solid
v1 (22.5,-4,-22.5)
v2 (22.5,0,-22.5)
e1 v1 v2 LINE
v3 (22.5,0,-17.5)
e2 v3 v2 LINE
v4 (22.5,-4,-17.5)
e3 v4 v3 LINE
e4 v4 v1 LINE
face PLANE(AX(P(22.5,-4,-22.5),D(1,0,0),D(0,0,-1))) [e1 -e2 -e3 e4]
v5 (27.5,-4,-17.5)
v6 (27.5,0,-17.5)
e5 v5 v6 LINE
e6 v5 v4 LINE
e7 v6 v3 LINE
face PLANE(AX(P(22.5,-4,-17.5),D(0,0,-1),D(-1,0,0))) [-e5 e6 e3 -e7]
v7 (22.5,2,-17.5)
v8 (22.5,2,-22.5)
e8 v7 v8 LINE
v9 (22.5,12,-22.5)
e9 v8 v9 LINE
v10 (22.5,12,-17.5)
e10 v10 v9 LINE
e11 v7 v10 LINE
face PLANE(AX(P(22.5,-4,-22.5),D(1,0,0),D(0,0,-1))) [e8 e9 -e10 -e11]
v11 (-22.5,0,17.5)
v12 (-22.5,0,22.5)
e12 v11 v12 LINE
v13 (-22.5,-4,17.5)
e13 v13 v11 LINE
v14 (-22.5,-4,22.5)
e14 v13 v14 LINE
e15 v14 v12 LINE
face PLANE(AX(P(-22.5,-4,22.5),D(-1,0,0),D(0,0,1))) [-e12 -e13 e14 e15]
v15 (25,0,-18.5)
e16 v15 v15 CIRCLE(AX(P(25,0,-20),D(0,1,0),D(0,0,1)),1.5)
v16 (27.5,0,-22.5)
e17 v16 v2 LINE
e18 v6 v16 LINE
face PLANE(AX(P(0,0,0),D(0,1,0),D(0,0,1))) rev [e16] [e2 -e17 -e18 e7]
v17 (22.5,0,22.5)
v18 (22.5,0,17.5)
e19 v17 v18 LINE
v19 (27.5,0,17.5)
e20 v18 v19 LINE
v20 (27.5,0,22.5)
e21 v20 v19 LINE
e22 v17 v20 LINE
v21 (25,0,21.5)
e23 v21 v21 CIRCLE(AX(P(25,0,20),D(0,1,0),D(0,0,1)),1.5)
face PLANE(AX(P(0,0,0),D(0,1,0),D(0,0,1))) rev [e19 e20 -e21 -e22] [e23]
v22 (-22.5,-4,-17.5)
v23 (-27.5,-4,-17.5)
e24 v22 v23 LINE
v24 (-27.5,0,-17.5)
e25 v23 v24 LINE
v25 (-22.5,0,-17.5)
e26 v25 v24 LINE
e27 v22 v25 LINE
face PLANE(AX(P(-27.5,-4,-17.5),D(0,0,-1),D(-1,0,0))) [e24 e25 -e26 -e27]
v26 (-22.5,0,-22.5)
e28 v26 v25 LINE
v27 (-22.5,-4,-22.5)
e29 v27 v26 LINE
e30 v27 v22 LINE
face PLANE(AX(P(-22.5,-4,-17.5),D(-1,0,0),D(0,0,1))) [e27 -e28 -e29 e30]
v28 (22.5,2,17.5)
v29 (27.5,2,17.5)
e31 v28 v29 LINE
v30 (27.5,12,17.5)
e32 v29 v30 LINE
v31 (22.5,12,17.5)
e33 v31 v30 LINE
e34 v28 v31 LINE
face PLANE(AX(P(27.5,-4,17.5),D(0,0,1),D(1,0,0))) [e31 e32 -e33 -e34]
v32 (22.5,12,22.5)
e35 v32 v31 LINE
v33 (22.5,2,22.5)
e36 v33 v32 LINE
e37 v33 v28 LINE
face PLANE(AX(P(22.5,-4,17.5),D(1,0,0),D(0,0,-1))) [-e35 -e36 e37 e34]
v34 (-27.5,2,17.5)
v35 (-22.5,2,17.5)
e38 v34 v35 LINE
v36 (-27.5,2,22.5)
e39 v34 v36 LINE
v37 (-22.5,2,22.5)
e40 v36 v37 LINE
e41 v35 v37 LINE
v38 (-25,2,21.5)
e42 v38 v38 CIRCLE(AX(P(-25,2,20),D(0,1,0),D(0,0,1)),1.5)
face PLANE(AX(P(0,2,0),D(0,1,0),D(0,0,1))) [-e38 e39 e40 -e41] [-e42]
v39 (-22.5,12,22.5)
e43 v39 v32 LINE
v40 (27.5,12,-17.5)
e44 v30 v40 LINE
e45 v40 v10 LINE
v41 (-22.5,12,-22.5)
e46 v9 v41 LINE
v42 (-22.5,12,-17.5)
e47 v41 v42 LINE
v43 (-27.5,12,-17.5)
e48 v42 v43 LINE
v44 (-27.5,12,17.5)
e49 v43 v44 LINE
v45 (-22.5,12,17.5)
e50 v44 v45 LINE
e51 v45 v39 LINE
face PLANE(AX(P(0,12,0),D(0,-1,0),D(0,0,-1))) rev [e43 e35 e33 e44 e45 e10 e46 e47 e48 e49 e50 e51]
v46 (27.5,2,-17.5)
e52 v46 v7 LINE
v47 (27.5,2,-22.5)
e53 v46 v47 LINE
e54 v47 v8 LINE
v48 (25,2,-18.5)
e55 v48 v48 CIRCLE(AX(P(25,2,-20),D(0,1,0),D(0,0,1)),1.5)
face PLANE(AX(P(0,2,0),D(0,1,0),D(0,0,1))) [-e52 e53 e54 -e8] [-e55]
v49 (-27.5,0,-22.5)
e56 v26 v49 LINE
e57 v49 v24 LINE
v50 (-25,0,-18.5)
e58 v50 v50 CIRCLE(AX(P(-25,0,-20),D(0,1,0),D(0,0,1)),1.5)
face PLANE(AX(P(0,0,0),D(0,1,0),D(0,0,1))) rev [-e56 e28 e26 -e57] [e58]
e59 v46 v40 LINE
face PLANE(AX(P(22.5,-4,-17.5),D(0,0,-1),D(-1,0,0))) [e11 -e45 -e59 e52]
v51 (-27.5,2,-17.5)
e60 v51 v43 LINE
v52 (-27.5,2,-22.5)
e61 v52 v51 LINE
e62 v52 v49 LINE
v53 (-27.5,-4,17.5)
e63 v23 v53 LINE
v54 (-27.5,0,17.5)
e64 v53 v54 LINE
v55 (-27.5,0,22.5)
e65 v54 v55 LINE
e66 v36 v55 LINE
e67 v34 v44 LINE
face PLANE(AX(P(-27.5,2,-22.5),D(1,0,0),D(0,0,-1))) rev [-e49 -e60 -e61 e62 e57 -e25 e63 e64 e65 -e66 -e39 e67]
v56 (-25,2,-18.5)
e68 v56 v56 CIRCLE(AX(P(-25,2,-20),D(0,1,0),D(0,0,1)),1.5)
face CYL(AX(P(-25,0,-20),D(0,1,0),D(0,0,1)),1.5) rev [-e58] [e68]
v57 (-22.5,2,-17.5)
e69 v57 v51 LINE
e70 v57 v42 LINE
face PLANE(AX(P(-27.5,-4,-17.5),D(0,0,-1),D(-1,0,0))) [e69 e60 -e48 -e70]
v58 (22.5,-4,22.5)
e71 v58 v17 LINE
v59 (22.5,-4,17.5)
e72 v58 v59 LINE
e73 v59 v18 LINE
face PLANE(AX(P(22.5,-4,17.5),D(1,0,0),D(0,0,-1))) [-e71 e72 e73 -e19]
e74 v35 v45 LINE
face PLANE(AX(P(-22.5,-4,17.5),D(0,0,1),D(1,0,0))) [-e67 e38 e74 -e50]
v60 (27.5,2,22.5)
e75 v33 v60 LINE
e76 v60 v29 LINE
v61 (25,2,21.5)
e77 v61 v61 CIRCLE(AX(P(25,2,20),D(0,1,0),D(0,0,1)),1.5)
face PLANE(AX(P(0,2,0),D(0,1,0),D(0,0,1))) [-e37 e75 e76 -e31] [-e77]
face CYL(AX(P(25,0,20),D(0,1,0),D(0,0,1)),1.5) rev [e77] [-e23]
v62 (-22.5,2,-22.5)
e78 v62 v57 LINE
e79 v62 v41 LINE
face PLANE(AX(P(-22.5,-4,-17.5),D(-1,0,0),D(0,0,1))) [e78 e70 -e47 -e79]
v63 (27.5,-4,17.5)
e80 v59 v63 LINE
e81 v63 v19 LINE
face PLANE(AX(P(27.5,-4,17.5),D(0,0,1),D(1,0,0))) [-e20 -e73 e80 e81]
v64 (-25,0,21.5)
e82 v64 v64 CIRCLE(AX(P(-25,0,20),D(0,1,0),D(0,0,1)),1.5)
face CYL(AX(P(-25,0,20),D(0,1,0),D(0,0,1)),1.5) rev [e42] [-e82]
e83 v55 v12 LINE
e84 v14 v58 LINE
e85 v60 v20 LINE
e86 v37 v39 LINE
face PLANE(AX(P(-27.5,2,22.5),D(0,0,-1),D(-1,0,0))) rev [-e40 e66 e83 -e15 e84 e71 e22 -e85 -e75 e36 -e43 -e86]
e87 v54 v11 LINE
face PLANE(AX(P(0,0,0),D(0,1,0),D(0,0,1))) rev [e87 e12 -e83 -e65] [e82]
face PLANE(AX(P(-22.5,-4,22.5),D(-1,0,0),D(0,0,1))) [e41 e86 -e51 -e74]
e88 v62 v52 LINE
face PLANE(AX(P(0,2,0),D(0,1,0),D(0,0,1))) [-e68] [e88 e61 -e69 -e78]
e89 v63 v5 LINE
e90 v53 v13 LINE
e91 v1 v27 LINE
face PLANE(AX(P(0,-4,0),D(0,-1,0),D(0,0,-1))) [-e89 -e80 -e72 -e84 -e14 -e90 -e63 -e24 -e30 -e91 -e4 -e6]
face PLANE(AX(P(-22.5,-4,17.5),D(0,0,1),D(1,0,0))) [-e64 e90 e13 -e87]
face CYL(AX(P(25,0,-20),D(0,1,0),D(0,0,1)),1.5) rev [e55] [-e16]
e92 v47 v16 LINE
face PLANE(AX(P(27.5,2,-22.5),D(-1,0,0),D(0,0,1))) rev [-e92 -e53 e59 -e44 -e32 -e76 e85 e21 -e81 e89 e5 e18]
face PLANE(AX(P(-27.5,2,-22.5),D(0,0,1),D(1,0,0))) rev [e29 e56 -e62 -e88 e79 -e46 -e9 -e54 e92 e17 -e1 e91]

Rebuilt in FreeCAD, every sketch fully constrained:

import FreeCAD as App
import Part
import Sketcher
from FreeCAD import Vector
Q = App.Units.Quantity

doc = App.newDocument("Part")
params = doc.addObject("Spreadsheet::Sheet", "Params")
for row, (alias, value) in enumerate([
    ("sketch1_width", "55 mm"),
    ("sketch1_height", "45 mm"),
    ("pad1_length", "2 mm"),
    ("sketch2_diameter", "3 mm"),
    ("sketch3_width", "5 mm"),
    ("sketch3_width2", "45 mm"),
    ("sketch3_height", "35 mm"),
    ("pad2_length", "10 mm"),
    ("pad2_length2", "6 mm"),
], start=1):
    params.set(f"A{row}", alias)
    params.set(f"B{row}", "=" + value)
    params.setAlias(f"B{row}", alias)

body = doc.addObject("PartDesign::Body", "Body")

# Sketch on XZ plane
sketch1 = body.newObject("Sketcher::SketchObject", "Sketch")
sketch1.AttachmentSupport = (doc.getObject("XZ_Plane"), [""])
sketch1.MapMode = "FlatFace"
sketch1.addGeometry(Part.LineSegment(Vector(-28, -22, 0), Vector(-28, 22, 0)), False)
sketch1.addGeometry(Part.LineSegment(Vector(-28, 22, 0), Vector(28, 22, 0)), False)
sketch1.addGeometry(Part.LineSegment(Vector(28, 22, 0), Vector(28, -22, 0)), False)
sketch1.addGeometry(Part.LineSegment(Vector(28, -22, 0), Vector(-28, -22, 0)), False)
sketch1.addConstraint(Sketcher.Constraint("Coincident", 0, 2, 1, 1))
sketch1.addConstraint(Sketcher.Constraint("Coincident", 1, 2, 2, 1))
sketch1.addConstraint(Sketcher.Constraint("Coincident", 2, 2, 3, 1))
sketch1.addConstraint(Sketcher.Constraint("Coincident", 3, 2, 0, 1))
sketch1.addConstraint(Sketcher.Constraint("Vertical", 0))
sketch1.addConstraint(Sketcher.Constraint("Horizontal", 1))
sketch1.addConstraint(Sketcher.Constraint("Vertical", 2))
sketch1.addConstraint(Sketcher.Constraint("Horizontal", 3))
sketch1.addConstraint(Sketcher.Constraint("Symmetric", 0, 2, 2, 2, -1, 1))
sketch1.addConstraint(Sketcher.Constraint("DistanceX", 1, 1, 1, 2, Q("55 mm")))
sketch1.addConstraint(Sketcher.Constraint("DistanceY", 0, 1, 0, 2, Q("45 mm")))
sketch1.setExpression("Constraints[9]", "Params.sketch1_width")
sketch1.setExpression("Constraints[10]", "Params.sketch1_height")
pad1 = body.newObject("PartDesign::Pad", "Pad")
pad1.Profile = sketch1
pad1.setExpression("Length", "Params.pad1_length")
pad1.Reversed = True

# Sketch on XZ plane
sketch2 = body.newObject("Sketcher::SketchObject", "Sketch001")
sketch2.AttachmentSupport = (doc.getObject("XZ_Plane"), [""])
sketch2.MapMode = "FlatFace"
sketch2.AttachmentOffset = App.Placement(Vector(0, 0, -2), App.Rotation())
sketch2.addGeometry(Part.Circle(Vector(-25, -20, 0), Vector(0, 0, 1), 1.5), False)
sketch2.addGeometry(Part.Circle(Vector(25, -20, 0), Vector(0, 0, 1), 1.5), False)
sketch2.addGeometry(Part.Circle(Vector(25, 20, 0), Vector(0, 0, 1), 1.5), False)
sketch2.addGeometry(Part.Circle(Vector(-25, 20, 0), Vector(0, 0, 1), 1.5), False)
sketch2.addConstraint(Sketcher.Constraint("Equal", 0, 1))
sketch2.addConstraint(Sketcher.Constraint("Equal", 1, 2))
sketch2.addConstraint(Sketcher.Constraint("Equal", 2, 3))
sketch2.addConstraint(Sketcher.Constraint("Symmetric", 0, 3, 2, 3, -1, 1))
sketch2.addConstraint(Sketcher.Constraint("Symmetric", 1, 3, 3, 3, -1, 1))
sketch2.addConstraint(Sketcher.Constraint("Symmetric", 0, 3, 1, 3, -2))
sketch2.addConstraint(Sketcher.Constraint("Diameter", 0, Q("3 mm")))
sketch2.addConstraint(Sketcher.Constraint("DistanceX", 0, 3, -1, 1, Q("25 mm")))
sketch2.addConstraint(Sketcher.Constraint("DistanceY", 0, 3, -1, 1, Q("20 mm")))
sketch2.setExpression("Constraints[6]", "Params.sketch2_diameter")
pocket1 = body.newObject("PartDesign::Pocket", "Pocket")
pocket1.Profile = sketch2
pocket1.Type = "ThroughAll"
pocket1.Midplane = True

# Sketch on XZ plane
sketch3 = body.newObject("Sketcher::SketchObject", "Sketch002")
sketch3.AttachmentSupport = (doc.getObject("XZ_Plane"), [""])
sketch3.MapMode = "FlatFace"
sketch3.AttachmentOffset = App.Placement(Vector(0, 0, -2), App.Rotation())
sketch3.addGeometry(Part.LineSegment(Vector(-22, -18, 0), Vector(-28, -18, 0)), False)
sketch3.addGeometry(Part.LineSegment(Vector(-28, -18, 0), Vector(-28, 18, 0)), False)
sketch3.addGeometry(Part.LineSegment(Vector(-28, 18, 0), Vector(-22, 18, 0)), False)
sketch3.addGeometry(Part.LineSegment(Vector(-22, 18, 0), Vector(-22, 22, 0)), False)
sketch3.addGeometry(Part.LineSegment(Vector(-22, 22, 0), Vector(22, 22, 0)), False)
sketch3.addGeometry(Part.LineSegment(Vector(22, 22, 0), Vector(22, 18, 0)), False)
sketch3.addGeometry(Part.LineSegment(Vector(22, 18, 0), Vector(28, 18, 0)), False)
sketch3.addGeometry(Part.LineSegment(Vector(28, 18, 0), Vector(28, -18, 0)), False)
sketch3.addGeometry(Part.LineSegment(Vector(28, -18, 0), Vector(22, -18, 0)), False)
sketch3.addGeometry(Part.LineSegment(Vector(22, -18, 0), Vector(22, -22, 0)), False)
sketch3.addGeometry(Part.LineSegment(Vector(22, -22, 0), Vector(-22, -22, 0)), False)
sketch3.addGeometry(Part.LineSegment(Vector(-22, -22, 0), Vector(-22, -18, 0)), False)
sketch3.addConstraint(Sketcher.Constraint("Coincident", 0, 2, 1, 1))
sketch3.addConstraint(Sketcher.Constraint("Coincident", 1, 2, 2, 1))
sketch3.addConstraint(Sketcher.Constraint("Coincident", 2, 2, 3, 1))
sketch3.addConstraint(Sketcher.Constraint("Coincident", 3, 2, 4, 1))
sketch3.addConstraint(Sketcher.Constraint("Coincident", 4, 2, 5, 1))
sketch3.addConstraint(Sketcher.Constraint("Coincident", 5, 2, 6, 1))
sketch3.addConstraint(Sketcher.Constraint("Coincident", 6, 2, 7, 1))
sketch3.addConstraint(Sketcher.Constraint("Coincident", 7, 2, 8, 1))
sketch3.addConstraint(Sketcher.Constraint("Coincident", 8, 2, 9, 1))
sketch3.addConstraint(Sketcher.Constraint("Coincident", 9, 2, 10, 1))
sketch3.addConstraint(Sketcher.Constraint("Coincident", 10, 2, 11, 1))
sketch3.addConstraint(Sketcher.Constraint("Coincident", 11, 2, 0, 1))
sketch3.addConstraint(Sketcher.Constraint("Horizontal", 0))
sketch3.addConstraint(Sketcher.Constraint("Vertical", 1))
sketch3.addConstraint(Sketcher.Constraint("Horizontal", 2))
sketch3.addConstraint(Sketcher.Constraint("Vertical", 3))
sketch3.addConstraint(Sketcher.Constraint("Horizontal", 4))
sketch3.addConstraint(Sketcher.Constraint("Vertical", 5))
sketch3.addConstraint(Sketcher.Constraint("Horizontal", 6))
sketch3.addConstraint(Sketcher.Constraint("Vertical", 7))
sketch3.addConstraint(Sketcher.Constraint("Horizontal", 8))
sketch3.addConstraint(Sketcher.Constraint("Vertical", 9))
sketch3.addConstraint(Sketcher.Constraint("Horizontal", 10))
sketch3.addConstraint(Sketcher.Constraint("Vertical", 11))
sketch3.addConstraint(Sketcher.Constraint("Symmetric", 0, 2, 6, 2, -1, 1))
sketch3.addConstraint(Sketcher.Constraint("Symmetric", 2, 2, 8, 2, -1, 1))
sketch3.addConstraint(Sketcher.Constraint("Symmetric", 4, 2, 10, 2, -1, 1))
sketch3.addConstraint(Sketcher.Constraint("Symmetric", 2, 2, 5, 2, -2))
sketch3.addConstraint(Sketcher.Constraint("Equal", 8, 3))
sketch3.addConstraint(Sketcher.Constraint("DistanceX", 0, 2, 0, 1, Q("5 mm")))
sketch3.addConstraint(Sketcher.Constraint("DistanceX", 4, 1, 4, 2, Q("45 mm")))
sketch3.addConstraint(Sketcher.Constraint("DistanceY", 1, 1, 1, 2, Q("35 mm")))
sketch3.setExpression("Constraints[29]", "Params.sketch3_width")
sketch3.setExpression("Constraints[30]", "Params.sketch3_width2")
sketch3.setExpression("Constraints[31]", "Params.sketch3_height")
pad2 = body.newObject("PartDesign::Pad", "Pad001")
pad2.Profile = sketch3
pad2.Type = "TwoLengths"
pad2.setExpression("Length", "Params.pad2_length")
pad2.setExpression("Length2", "Params.pad2_length2")
pad2.Reversed = True

doc.recompute()
